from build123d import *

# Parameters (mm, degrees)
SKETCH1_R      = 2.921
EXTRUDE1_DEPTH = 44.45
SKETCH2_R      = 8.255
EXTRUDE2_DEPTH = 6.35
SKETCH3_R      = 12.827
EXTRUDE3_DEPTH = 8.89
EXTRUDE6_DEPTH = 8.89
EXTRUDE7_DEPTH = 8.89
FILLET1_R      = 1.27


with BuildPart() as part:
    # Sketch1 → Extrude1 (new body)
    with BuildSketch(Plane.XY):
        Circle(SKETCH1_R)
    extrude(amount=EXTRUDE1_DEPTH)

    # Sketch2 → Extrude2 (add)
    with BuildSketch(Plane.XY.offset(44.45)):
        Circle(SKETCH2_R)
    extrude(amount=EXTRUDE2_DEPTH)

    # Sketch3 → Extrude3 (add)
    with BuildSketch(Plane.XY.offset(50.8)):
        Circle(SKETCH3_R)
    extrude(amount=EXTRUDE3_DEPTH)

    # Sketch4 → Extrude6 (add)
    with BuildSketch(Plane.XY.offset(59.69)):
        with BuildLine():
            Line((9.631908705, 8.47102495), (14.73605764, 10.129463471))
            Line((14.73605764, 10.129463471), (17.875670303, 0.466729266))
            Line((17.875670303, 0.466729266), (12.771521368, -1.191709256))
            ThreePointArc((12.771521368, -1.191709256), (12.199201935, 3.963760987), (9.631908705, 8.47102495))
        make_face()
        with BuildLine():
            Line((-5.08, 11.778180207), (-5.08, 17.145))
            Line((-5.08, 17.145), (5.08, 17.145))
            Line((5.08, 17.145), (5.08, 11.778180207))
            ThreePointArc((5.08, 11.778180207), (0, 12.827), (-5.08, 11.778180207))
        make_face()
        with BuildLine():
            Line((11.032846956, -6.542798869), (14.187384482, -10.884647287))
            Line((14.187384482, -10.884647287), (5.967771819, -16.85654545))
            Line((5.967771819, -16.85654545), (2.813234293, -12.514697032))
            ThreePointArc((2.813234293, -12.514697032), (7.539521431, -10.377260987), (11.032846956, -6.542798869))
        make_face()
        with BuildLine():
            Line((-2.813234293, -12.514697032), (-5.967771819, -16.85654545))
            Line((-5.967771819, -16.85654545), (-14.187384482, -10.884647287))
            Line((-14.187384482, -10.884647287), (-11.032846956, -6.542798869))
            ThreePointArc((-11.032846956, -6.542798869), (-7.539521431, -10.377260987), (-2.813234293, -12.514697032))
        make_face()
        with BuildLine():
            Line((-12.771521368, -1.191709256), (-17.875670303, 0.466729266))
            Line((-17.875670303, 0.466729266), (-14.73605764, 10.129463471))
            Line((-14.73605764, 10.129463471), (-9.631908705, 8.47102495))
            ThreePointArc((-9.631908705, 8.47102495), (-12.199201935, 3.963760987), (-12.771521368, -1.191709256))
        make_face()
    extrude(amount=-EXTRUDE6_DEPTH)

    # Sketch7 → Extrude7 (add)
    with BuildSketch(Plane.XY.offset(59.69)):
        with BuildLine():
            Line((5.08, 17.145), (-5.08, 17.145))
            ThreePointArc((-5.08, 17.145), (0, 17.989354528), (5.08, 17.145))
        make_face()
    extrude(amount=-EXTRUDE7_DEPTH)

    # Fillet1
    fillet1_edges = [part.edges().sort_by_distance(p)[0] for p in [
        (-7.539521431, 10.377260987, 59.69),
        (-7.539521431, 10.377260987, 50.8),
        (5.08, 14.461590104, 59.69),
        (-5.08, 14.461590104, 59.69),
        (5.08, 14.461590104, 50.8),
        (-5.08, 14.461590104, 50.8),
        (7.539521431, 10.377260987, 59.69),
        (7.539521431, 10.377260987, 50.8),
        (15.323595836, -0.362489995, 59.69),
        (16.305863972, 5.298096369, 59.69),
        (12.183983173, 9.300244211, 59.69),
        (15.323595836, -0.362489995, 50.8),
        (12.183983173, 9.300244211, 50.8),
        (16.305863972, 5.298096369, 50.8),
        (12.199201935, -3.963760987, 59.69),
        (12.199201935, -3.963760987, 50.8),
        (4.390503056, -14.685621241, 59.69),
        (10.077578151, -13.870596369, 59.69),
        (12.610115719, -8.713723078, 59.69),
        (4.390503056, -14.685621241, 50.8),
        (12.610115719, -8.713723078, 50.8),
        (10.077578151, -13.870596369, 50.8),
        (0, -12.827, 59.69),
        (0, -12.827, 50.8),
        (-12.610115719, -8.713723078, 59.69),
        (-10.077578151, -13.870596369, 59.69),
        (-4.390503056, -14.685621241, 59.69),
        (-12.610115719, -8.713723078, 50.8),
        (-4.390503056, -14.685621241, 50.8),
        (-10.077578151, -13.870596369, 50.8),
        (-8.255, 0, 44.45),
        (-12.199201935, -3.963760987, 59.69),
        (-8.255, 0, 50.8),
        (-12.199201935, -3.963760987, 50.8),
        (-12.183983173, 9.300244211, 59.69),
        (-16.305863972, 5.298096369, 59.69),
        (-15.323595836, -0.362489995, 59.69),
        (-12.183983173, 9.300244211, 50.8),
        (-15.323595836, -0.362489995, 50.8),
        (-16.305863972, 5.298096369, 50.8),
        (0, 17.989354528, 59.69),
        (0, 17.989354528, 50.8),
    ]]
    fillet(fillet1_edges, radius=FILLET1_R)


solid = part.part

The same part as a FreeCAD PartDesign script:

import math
import FreeCAD as App
import Part
import Sketcher

V = App.Vector
Q = App.Units.Quantity


def edges_at(feature, points):
    """Names of the edges that pass closest to the given points."""
    edges = feature.Shape.Edges
    near = lambda p: min(range(len(edges)), key=lambda i: edges[i].distToShape(Part.Vertex(*p))[0])
    return sorted({f"Edge{near(p) + 1}" for p in points})

doc = App.newDocument("Part")
params = doc.addObject("Spreadsheet::Sheet", "Params")
for row, (alias, value) in enumerate([
    ("sketch1_diameter", "0.23 in"),
    ("pad1_length", "1.75 in"),
    ("sketch2_diameter", "0.65 in"),
    ("pad2_length", "0.25 in"),
    ("sketch3_diameter", "1.01 in"),
    ("pad3_length", "0.35 in"),
    ("sketch4_width", "0.4 in"),
    ("sketch4_radius", "0.505 in"),
    ("sketch4_length", "0.4 in"),
    ("pad4_length", "0.35 in"),
    ("sketch5_width", "0.4 in"),
    ("pad5_length", "0.35 in"),
    ("fillet_radius", "0.05 in"),
], start=1):
    params.set(f"A{row}", alias)
    params.set(f"B{row}", "=" + value)
    params.setAlias(f"B{row}", alias)

body = doc.addObject("PartDesign::Body", "Body")

sketch1 = doc.addObject("Sketcher::SketchObject", "Sketch")
body.addObject(sketch1)
sketch1.AttachmentSupport = (doc.XY_Plane, [""])
sketch1.MapMode = "FlatFace"
sketch1.addGeometry(Part.Circle(V(0, 0, 0), V(0, 0, 1), 2.9), False)
sketch1.addConstraint([
    Sketcher.Constraint("Coincident", 0, 3, -1, 1),
    Sketcher.Constraint("Diameter", 0, Q("0.23 in")),
])
sketch1.setExpression("Constraints[1]", "Params.sketch1_diameter")
pad1 = doc.addObject("PartDesign::Pad", "Pad")
body.addObject(pad1)
pad1.Profile = sketch1
pad1.setExpression("Length", "Params.pad1_length")

sketch2 = doc.addObject("Sketcher::SketchObject", "Sketch001")
body.addObject(sketch2)
sketch2.AttachmentSupport = (doc.XY_Plane, [""])
sketch2.MapMode = "FlatFace"
sketch2.AttachmentOffset = App.Placement(V(0, 0, 1.75 * 25.4), App.Rotation())
sketch2.addGeometry(Part.Circle(V(0, 0, 0), V(0, 0, 1), 8), False)
sketch2.addConstraint([
    Sketcher.Constraint("Coincident", 0, 3, -1, 1),
    Sketcher.Constraint("Diameter", 0, Q("0.65 in")),
])
sketch2.setExpression("Constraints[1]", "Params.sketch2_diameter")
pad2 = doc.addObject("PartDesign::Pad", "Pad001")
body.addObject(pad2)
pad2.Profile = sketch2
pad2.setExpression("Length", "Params.pad2_length")

sketch3 = doc.addObject("Sketcher::SketchObject", "Sketch002")
body.addObject(sketch3)
sketch3.AttachmentSupport = (doc.XY_Plane, [""])
sketch3.MapMode = "FlatFace"
sketch3.AttachmentOffset = App.Placement(V(0, 0, 2 * 25.4), App.Rotation())
sketch3.addGeometry(Part.Circle(V(0, 0, 0), V(0, 0, 1), 13), False)
sketch3.addConstraint([
    Sketcher.Constraint("Coincident", 0, 3, -1, 1),
    Sketcher.Constraint("Diameter", 0, Q("1.01 in")),
])
sketch3.setExpression("Constraints[1]", "Params.sketch3_diameter")
pad3 = doc.addObject("PartDesign::Pad", "Pad002")
body.addObject(pad3)
pad3.Profile = sketch3
pad3.setExpression("Length", "Params.pad3_length")

sketch4 = doc.addObject("Sketcher::SketchObject", "Sketch003")
body.addObject(sketch4)
sketch4.AttachmentSupport = (doc.XY_Plane, [""])
sketch4.MapMode = "FlatFace"
sketch4.AttachmentOffset = App.Placement(V(0, 0, 2.35 * 25.4), App.Rotation())
sketch4.addGeometry([
    Part.LineSegment(V(15, 10, 0), V(10, 8, 0)),
    Part.ArcOfCircle(Part.Circle(V(0, 0, 0), V(0, 0, 1), 13), math.radians(-5), math.radians(41)),
    Part.LineSegment(V(13, -1, 0), V(18, 0, 0)),
    Part.LineSegment(V(18, 0, 0), V(15, 10, 0)),
    Part.LineSegment(V(-5, 17, 0), V(-5, 12, 0)),
    Part.ArcOfCircle(Part.Circle(V(0, 0, 0), V(0, 0, 1), 13), math.radians(67), math.radians(113)),
    Part.LineSegment(V(5, 12, 0), V(5, 17, 0)),
    Part.LineSegment(V(5, 17, 0), V(-5, 17, 0)),
    Part.LineSegment(V(14, -11, 0), V(11, -7, 0)),
    Part.ArcOfCircle(Part.Circle(V(0, 0, 0), V(0, 0, 1), 13), math.radians(-77), math.radians(-31)),
    Part.LineSegment(V(3, -13, 0), V(6, -17, 0)),
    Part.LineSegment(V(6, -17, 0), V(14, -11, 0)),
    Part.LineSegment(V(-6, -17, 0), V(-3, -13, 0)),
    Part.ArcOfCircle(Part.Circle(V(0, 0, 0), V(0, 0, 1), 13), math.radians(-149), math.radians(-103)),
    Part.LineSegment(V(-11, -7, 0), V(-14, -11, 0)),
    Part.LineSegment(V(-14, -11, 0), V(-6, -17, 0)),
    Part.LineSegment(V(-18, 0, 0), V(-13, -1, 0)),
    Part.ArcOfCircle(Part.Circle(V(0, 0, 0), V(0, 0, 1), 13), math.radians(139), math.radians(185)),
    Part.LineSegment(V(-10, 8, 0), V(-15, 10, 0)),
    Part.LineSegment(V(-15, 10, 0), V(-18, 0, 0)),
], False)
sketch4.addConstraint([
    Sketcher.Constraint("Coincident", 0, 2, 1, 2),
    Sketcher.Constraint("Coincident", 1, 1, 2, 1),
    Sketcher.Constraint("Coincident", 2, 2, 3, 1),
    Sketcher.Constraint("Coincident", 3, 2, 0, 1),
    Sketcher.Constraint("Coincident", 4, 2, 5, 2),
    Sketcher.Constraint("Coincident", 5, 1, 6, 1),
    Sketcher.Constraint("Coincident", 6, 2, 7, 1),
    Sketcher.Constraint("Coincident", 7, 2, 4, 1),
    Sketcher.Constraint("Coincident", 8, 2, 9, 2),
    Sketcher.Constraint("Coincident", 9, 1, 10, 1),
    Sketcher.Constraint("Coincident", 10, 2, 11, 1),
    Sketcher.Constraint("Coincident", 11, 2, 8, 1),
    Sketcher.Constraint("Coincident", 12, 2, 13, 2),
    Sketcher.Constraint("Coincident", 13, 1, 14, 1),
    Sketcher.Constraint("Coincident", 14, 2, 15, 1),
    Sketcher.Constraint("Coincident", 15, 2, 12, 1),
    Sketcher.Constraint("Coincident", 16, 2, 17, 2),
    Sketcher.Constraint("Coincident", 17, 1, 18, 1),
    Sketcher.Constraint("Coincident", 18, 2, 19, 1),
    Sketcher.Constraint("Coincident", 19, 2, 16, 1),
    Sketcher.Constraint("Vertical", 4),
    Sketcher.Constraint("Vertical", 6),
    Sketcher.Constraint("Horizontal", 7),
    Sketcher.Constraint("Coincident", 1, 3, -1, 1),
    Sketcher.Constraint("Coincident", 5, 3, -1, 1),
    Sketcher.Constraint("Coincident", 9, 3, -1, 1),
    Sketcher.Constraint("Coincident", 13, 3, -1, 1),
    Sketcher.Constraint("Coincident", 17, 3, -1, 1),
    Sketcher.Constraint("Equal", 1, 5),
    Sketcher.Constraint("Equal", 5, 9),
    Sketcher.Constraint("Equal", 9, 13),
    Sketcher.Constraint("Equal", 13, 17),
    Sketcher.Constraint("Symmetric", 11, 2, 14, 2, -2),
    Sketcher.Constraint("Symmetric", 10, 2, 15, 2, -2),
    Sketcher.Constraint("Symmetric", 3, 2, 18, 2, -2),
    Sketcher.Constraint("Symmetric", 2, 2, 19, 2, -2),
    Sketcher.Constraint("Parallel", 0, 2),
    Sketcher.Constraint("Perpendicular", 2, 3),
    Sketcher.Constraint("Parallel", 8, 10),
    Sketcher.Constraint("Perpendicular", 10, 11),
    Sketcher.Constraint("Parallel", 12, 14),
    Sketcher.Constraint("Perpendicular", 14, 15),
    Sketcher.Constraint("Parallel", 16, 18),
    Sketcher.Constraint("Perpendicular", 18, 19),
    Sketcher.Constraint("Horizontal", 4, 2, 5, 1),
    Sketcher.Constraint("Equal", 0, 2),
    Sketcher.Constraint("Equal", 2, 8),
    Sketcher.Constraint("Equal", 8, 10),
    Sketcher.Constraint("Equal", 3, 11),
    Sketcher.Constraint("DistanceX", 7, 2, 7, 1, Q("0.4 in")),
    Sketcher.Constraint("Angle", 0, Q("-162 deg")),
    Sketcher.Constraint("Angle", 8, Q("126 deg")),
    Sketcher.Constraint("Radius", 1, Q("0.505 in")),
    Sketcher.Constraint("Distance", 3, Q("0.4 in")),
    Sketcher.Constraint("DistanceY", -1, 1, 6, 2, Q("0.675 in")),
    Sketcher.Constraint("Distance", 0, Q("5.36682 mm")),
])
sketch4.setExpression("Constraints[49]", "Params.sketch4_width")
sketch4.setExpression("Constraints[52]", "Params.sketch4_radius")
sketch4.setExpression("Constraints[53]", "Params.sketch4_length")
pad4 = doc.addObject("PartDesign::Pad", "Pad003")
body.addObject(pad4)
pad4.Profile = sketch4
pad4.setExpression("Length", "Params.pad4_length")
pad4.Reversed = True

sketch5 = doc.addObject("Sketcher::SketchObject", "Sketch004")
body.addObject(sketch5)
sketch5.AttachmentSupport = (doc.XY_Plane, [""])
sketch5.MapMode = "FlatFace"
sketch5.AttachmentOffset = App.Placement(V(0, 0, 2.35 * 25.4), App.Rotation())
sketch5.addGeometry([
    Part.LineSegment(V(-5, 17, 0), V(5, 17, 0)),
    Part.ArcOfCircle(Part.Circle(V(0, 2, 0), V(0, 0, 1), 16), math.radians(71), math.radians(109)),
], False)
sketch5.addConstraint([
    Sketcher.Constraint("Coincident", 0, 1, 1, 2),
    Sketcher.Constraint("Coincident", 1, 1, 0, 2),
    Sketcher.Constraint("Horizontal", 0),
    Sketcher.Constraint("PointOnObject", 1, 3, -2),
    Sketcher.Constraint("DistanceX", 0, 1, 0, 2, Q("0.4 in")),
    Sketcher.Constraint("DistanceY", -1, 1, 0, 1, Q("0.675 in")),
    Sketcher.Constraint("Radius", 1, Q("15.70391 mm")),
])
sketch5.setExpression("Constraints[4]", "Params.sketch5_width")
pad5 = doc.addObject("PartDesign::Pad", "Pad004")
body.addObject(pad5)
pad5.Profile = sketch5
pad5.setExpression("Length", "Params.pad5_length")
pad5.Reversed = True
doc.recompute()

fillet = doc.addObject("PartDesign::Fillet", "Fillet")
body.addObject(fillet)
fillet.Base = (pad5, edges_at(pad5, [
    (-7.54, 10.377, 59.69),
    (-7.54, 10.377, 50.8),
    (5.08, 14.462, 59.69),
    (-5.08, 14.462, 59.69),
    (5.08, 14.462, 50.8),
    (-5.08, 14.462, 50.8),
    (7.54, 10.377, 59.69),
    (7.54, 10.377, 50.8),
    (15.324, -0.362, 59.69),
    (16.306, 5.298, 59.69),
    (12.184, 9.3, 59.69),
    (15.324, -0.362, 50.8),
    (12.184, 9.3, 50.8),
    (16.306, 5.298, 50.8),
    (12.199, -3.964, 59.69),
    (12.199, -3.964, 50.8),
    (4.391, -14.686, 59.69),
    (10.078, -13.871, 59.69),
    (12.61, -8.714, 59.69),
    (4.391, -14.686, 50.8),
    (12.61, -8.714, 50.8),
    (10.078, -13.871, 50.8),
    (0, -12.827, 59.69),
    (0, -12.827, 50.8),
    (-12.61, -8.714, 59.69),
    (-10.078, -13.871, 59.69),
    (-4.391, -14.686, 59.69),
    (-12.61, -8.714, 50.8),
    (-4.391, -14.686, 50.8),
    (-10.078, -13.871, 50.8),
    (-8.255, 0, 44.45),
    (-12.199, -3.964, 59.69),
    (-8.255, 0, 50.8),
    (-12.199, -3.964, 50.8),
    (-12.184, 9.3, 59.69),
    (-16.306, 5.298, 59.69),
    (-15.324, -0.362, 59.69),
    (-12.184, 9.3, 50.8),
    (-15.324, -0.362, 50.8),
    (-16.306, 5.298, 50.8),
    (0, 17.989, 59.69),
    (0, 17.989, 50.8),
]))
fillet.setExpression("Radius", "Params.fillet_radius")

doc.recompute()
